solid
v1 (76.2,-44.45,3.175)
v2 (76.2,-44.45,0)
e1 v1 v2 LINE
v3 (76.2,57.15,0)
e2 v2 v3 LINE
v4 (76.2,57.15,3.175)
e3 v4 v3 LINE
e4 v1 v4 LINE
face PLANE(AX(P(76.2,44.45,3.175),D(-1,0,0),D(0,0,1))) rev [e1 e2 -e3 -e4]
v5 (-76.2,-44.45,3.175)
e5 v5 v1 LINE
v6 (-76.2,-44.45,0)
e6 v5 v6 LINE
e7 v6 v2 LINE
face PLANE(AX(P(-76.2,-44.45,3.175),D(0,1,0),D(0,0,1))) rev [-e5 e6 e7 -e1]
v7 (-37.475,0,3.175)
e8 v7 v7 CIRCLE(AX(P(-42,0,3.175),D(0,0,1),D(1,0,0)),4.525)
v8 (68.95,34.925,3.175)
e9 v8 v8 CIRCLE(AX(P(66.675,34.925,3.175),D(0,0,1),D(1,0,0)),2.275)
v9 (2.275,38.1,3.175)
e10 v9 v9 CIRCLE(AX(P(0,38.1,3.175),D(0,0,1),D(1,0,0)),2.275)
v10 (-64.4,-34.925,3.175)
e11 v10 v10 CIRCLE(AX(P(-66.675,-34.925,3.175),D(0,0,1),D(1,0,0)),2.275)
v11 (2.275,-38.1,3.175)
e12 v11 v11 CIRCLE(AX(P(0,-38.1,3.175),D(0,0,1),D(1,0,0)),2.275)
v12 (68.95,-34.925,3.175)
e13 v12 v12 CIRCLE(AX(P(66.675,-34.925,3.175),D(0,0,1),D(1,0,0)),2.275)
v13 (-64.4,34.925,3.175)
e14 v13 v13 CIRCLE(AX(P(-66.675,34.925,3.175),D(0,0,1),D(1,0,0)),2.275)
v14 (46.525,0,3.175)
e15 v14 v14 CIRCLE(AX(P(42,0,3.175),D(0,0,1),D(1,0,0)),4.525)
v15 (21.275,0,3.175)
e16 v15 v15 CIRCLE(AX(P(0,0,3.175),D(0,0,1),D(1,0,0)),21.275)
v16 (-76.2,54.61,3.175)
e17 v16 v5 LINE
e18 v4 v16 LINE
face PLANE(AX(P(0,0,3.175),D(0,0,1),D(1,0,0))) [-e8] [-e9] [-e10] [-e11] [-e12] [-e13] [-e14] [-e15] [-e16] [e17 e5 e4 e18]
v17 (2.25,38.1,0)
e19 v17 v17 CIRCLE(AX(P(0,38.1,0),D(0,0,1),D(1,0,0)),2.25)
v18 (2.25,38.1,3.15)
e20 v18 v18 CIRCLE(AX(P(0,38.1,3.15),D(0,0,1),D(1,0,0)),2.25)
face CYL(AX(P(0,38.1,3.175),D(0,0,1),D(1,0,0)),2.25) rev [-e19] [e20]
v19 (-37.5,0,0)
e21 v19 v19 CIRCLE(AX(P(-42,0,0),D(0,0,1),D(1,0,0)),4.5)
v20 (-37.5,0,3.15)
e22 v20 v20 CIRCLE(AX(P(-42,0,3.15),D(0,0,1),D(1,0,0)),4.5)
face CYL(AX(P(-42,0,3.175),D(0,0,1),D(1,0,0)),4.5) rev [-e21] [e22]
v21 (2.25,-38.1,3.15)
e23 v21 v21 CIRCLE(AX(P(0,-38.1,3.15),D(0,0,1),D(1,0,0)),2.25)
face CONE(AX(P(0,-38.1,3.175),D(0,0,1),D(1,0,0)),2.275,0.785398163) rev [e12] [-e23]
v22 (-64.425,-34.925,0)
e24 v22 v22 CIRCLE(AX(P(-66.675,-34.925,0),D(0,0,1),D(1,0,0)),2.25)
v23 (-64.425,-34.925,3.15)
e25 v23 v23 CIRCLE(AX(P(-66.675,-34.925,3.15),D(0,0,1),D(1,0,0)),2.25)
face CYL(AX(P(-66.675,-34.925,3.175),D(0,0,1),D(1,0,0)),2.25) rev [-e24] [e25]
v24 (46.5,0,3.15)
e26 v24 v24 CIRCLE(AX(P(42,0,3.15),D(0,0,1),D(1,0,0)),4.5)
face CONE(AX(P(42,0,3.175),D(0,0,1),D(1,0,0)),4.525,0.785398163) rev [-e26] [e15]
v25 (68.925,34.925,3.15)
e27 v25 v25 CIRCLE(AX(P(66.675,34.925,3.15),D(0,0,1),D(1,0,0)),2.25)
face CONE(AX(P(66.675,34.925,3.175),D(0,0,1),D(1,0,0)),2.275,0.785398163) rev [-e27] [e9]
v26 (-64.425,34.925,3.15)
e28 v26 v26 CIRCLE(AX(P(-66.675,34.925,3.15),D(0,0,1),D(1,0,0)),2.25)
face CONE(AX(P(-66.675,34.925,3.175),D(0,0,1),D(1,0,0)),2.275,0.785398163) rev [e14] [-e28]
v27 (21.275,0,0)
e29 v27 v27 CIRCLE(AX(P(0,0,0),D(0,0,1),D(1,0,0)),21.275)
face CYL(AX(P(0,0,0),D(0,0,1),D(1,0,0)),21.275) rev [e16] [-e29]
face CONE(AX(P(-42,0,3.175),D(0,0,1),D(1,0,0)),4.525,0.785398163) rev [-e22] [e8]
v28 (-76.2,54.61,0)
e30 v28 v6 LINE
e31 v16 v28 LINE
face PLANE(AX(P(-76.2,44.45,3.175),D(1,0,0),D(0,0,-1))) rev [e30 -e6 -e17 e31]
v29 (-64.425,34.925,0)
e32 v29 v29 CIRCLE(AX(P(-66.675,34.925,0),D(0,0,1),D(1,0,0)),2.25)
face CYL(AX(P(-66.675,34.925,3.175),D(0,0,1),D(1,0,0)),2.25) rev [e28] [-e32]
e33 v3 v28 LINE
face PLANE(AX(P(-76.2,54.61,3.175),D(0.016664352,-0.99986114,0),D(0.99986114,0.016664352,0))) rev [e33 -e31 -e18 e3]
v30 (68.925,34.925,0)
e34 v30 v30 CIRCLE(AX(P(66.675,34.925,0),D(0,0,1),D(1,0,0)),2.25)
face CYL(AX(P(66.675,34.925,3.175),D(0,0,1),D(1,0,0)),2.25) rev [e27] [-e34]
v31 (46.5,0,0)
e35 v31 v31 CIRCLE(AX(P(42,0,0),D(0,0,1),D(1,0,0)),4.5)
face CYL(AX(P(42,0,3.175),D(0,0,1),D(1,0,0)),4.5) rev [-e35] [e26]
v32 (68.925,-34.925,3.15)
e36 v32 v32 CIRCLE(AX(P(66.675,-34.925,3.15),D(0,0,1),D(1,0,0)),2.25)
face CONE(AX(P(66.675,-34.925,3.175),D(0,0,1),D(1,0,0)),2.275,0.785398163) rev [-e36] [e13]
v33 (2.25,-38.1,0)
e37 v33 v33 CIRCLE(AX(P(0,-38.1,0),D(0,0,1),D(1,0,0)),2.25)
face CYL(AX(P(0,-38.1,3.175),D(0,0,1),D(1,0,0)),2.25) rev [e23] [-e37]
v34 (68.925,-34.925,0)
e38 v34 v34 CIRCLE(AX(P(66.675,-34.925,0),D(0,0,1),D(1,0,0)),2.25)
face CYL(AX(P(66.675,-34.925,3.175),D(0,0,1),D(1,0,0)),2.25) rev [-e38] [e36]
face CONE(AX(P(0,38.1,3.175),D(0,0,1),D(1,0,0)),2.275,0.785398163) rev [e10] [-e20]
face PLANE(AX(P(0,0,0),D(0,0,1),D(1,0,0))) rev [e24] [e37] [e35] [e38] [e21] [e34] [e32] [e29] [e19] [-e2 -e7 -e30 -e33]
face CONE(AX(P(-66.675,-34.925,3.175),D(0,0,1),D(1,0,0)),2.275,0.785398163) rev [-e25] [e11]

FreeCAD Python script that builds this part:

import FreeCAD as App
import Part
import Sketcher
Q = App.Units.Quantity

doc = App.newDocument("Part")
params = doc.addObject("Spreadsheet::Sheet", "Params")
for row, (alias, value) in enumerate([
    ("sketch1_width", "6 in"),
    ("sketch1_height", "4 in"),
    ("sketch1_height2", "3.9 in"),
    ("pad1_length", "0.125 in"),
    ("hole_diameter", "4.5 mm"),
    ("hole_csink_diameter", "4.55 mm"),
    ("sketch3_height", "0.125 in"),
    ("groove_angle", "360 deg"),
    ("linearpattern_pitch", "84 mm"),
], start=1):
    params.set(f"A{row}", alias)
    params.set(f"B{row}", "=" + value)
    params.setAlias(f"B{row}", alias)

body = doc.addObject("PartDesign::Body", "Body")

sketch1 = body.newObject("Sketcher::SketchObject", "Sketch")
sketch1.AttachmentSupport = (doc.getObject("XY_Plane"), [""])
sketch1.MapMode = "FlatFace"
sketch1.addGeometry([
    Part.LineSegment(App.Vector(-76, 55, 0), App.Vector(-76, -44, 0)),
    Part.LineSegment(App.Vector(-76, -44, 0), App.Vector(76, -44, 0)),
    Part.LineSegment(App.Vector(76, -44, 0), App.Vector(76, 57, 0)),
    Part.LineSegment(App.Vector(76, 57, 0), App.Vector(-76, 55, 0)),
], False)
sketch1.addConstraint([
    Sketcher.Constraint("Coincident", 0, 2, 1, 1),
    Sketcher.Constraint("Coincident", 1, 2, 2, 1),
    Sketcher.Constraint("Coincident", 2, 2, 3, 1),
    Sketcher.Constraint("Coincident", 3, 2, 0, 1),
    Sketcher.Constraint("Vertical", 0),
    Sketcher.Constraint("Horizontal", 1),
    Sketcher.Constraint("Vertical", 2),
    Sketcher.Constraint("DistanceX", 1, 1, 1, 2, Q("6 in")),
    Sketcher.Constraint("DistanceY", 2, 1, 2, 2, Q("4 in")),
    Sketcher.Constraint("DistanceY", 0, 2, 0, 1, Q("3.9 in")),
    Sketcher.Constraint("DistanceX", 0, 2, -1, 1, Q("3 in")),
    Sketcher.Constraint("DistanceY", 0, 2, -1, 1, Q("1.75 in")),
])
sketch1.setExpression("Constraints[7]", "Params.sketch1_width")
sketch1.setExpression("Constraints[8]", "Params.sketch1_height")
sketch1.setExpression("Constraints[9]", "Params.sketch1_height2")
pad1 = body.newObject("PartDesign::Pad", "Pad")
pad1.Profile = sketch1
pad1.setExpression("Length", "Params.pad1_length")

sketch2 = body.newObject("Sketcher::SketchObject", "Sketch001")
sketch2.AttachmentSupport = (doc.getObject("XY_Plane"), [""])
sketch2.MapMode = "FlatFace"
sketch2.AttachmentOffset = App.Placement(App.Vector(0, 0, 0.125 * 25.4), App.Rotation())
sketch2.addGeometry([
    Part.Circle(App.Vector(0, 38.1, 0), App.Vector(0, 0, 1), 2.2),
    Part.Circle(App.Vector(-66.7, 34.9, 0), App.Vector(0, 0, 1), 2.2),
    Part.Circle(App.Vector(-66.7, -34.9, 0), App.Vector(0, 0, 1), 2.2),
    Part.Circle(App.Vector(0, -38.1, 0), App.Vector(0, 0, 1), 2.2),
    Part.Circle(App.Vector(66.7, -34.9, 0), App.Vector(0, 0, 1), 2.2),
    Part.Circle(App.Vector(66.7, 34.9, 0), App.Vector(0, 0, 1), 2.2),
], False)
sketch2.addConstraint([
    Sketcher.Constraint("Equal", 0, 1),
    Sketcher.Constraint("Equal", 1, 2),
    Sketcher.Constraint("Equal", 2, 3),
    Sketcher.Constraint("Equal", 3, 4),
    Sketcher.Constraint("Equal", 4, 5),
    Sketcher.Constraint("Symmetric", 0, 3, 3, 3, -1, 1),
    Sketcher.Constraint("Symmetric", 1, 3, 4, 3, -1, 1),
    Sketcher.Constraint("Symmetric", 2, 3, 5, 3, -1, 1),
    Sketcher.Constraint("Symmetric", 2, 3, 4, 3, -2),
    Sketcher.Constraint("PointOnObject", 0, 3, -2),
    Sketcher.Constraint("DistanceY", 3, 3, 0, 3, Q("3 in")),
    Sketcher.Constraint("Diameter", 0, Q("4.5 mm")),
    Sketcher.Constraint("DistanceY", 2, 3, 1, 3, Q("2.75 in")),
    Sketcher.Constraint("DistanceX", 2, 3, 4, 3, Q("5.25 in")),
])
doc.recompute()
hole = body.newObject("PartDesign::Hole", "Hole")
hole.Profile = sketch2
hole.ThreadType = "None"
hole.setExpression("Diameter", "Params.hole_diameter")
hole.DepthType = "ThroughAll"
hole.HoleCutType = "Countersink"
hole.setExpression("HoleCutDiameter", "Params.hole_csink_diameter")
hole.HoleCutCountersinkAngle = 90

sketch3 = body.newObject("Sketcher::SketchObject", "Sketch002")
sketch3.AttachmentSupport = (doc.getObject("YZ_Plane"), [""])
sketch3.MapMode = "FlatFace"
sketch3.AttachmentOffset = App.Placement(App.Vector(0, 0, -42), App.Rotation())
sketch3.addGeometry([
    Part.LineSegment(App.Vector(0, 0, 0), App.Vector(0, 3.175, 0)),
    Part.LineSegment(App.Vector(0, 3.175, 0), App.Vector(-4.525, 3.175, 0)),
    Part.LineSegment(App.Vector(-4.525, 3.175, 0), App.Vector(-4.5, 3.15, 0)),
    Part.LineSegment(App.Vector(-4.5, 3.15, 0), App.Vector(-4.5, 0, 0)),
    Part.LineSegment(App.Vector(-4.5, 0, 0), App.Vector(0, 0, 0)),
], False)
sketch3.addConstraint([
    Sketcher.Constraint("Coincident", 0, 2, 1, 1),
    Sketcher.Constraint("Coincident", 1, 2, 2, 1),
    Sketcher.Constraint("Coincident", 2, 2, 3, 1),
    Sketcher.Constraint("Coincident", 3, 2, 4, 1),
    Sketcher.Constraint("Coincident", 4, 2, 0, 1),
    Sketcher.Constraint("Vertical", 0),
    Sketcher.Constraint("Horizontal", 1),
    Sketcher.Constraint("Vertical", 3),
    Sketcher.Constraint("Horizontal", 4),
    Sketcher.Constraint("Coincident", 4, 2, -1, 1),
    Sketcher.Constraint("Angle", 2, Q("-45 deg")),
    Sketcher.Constraint("DistanceY", 0, 1, 0, 2, Q("0.125 in")),
    Sketcher.Constraint("DistanceX", 1, 2, 1, 1, Q("4.525 mm")),
    Sketcher.Constraint("DistanceX", 4, 1, 4, 2, Q("4.5 mm")),
])
sketch3.setExpression("Constraints[11]", "Params.sketch3_height")
groove = body.newObject("PartDesign::Groove", "Groove")
groove.Profile = sketch3
groove.ReferenceAxis = (sketch3, ["V_Axis"])
groove.setExpression("Angle", "Params.groove_angle")
doc.recompute()

linearpattern = body.newObject("PartDesign::LinearPattern", "LinearPattern")
linearpattern.Originals = [groove]
linearpattern.Direction = (doc.getObject("X_Axis"), [""])
linearpattern.Mode = "offset"
linearpattern.setExpression("Offset", "Params.linearpattern_pitch")
linearpattern.Occurrences = 2
body.Tip = linearpattern

sketch4 = body.newObject("Sketcher::SketchObject", "Sketch003")
sketch4.AttachmentSupport = (doc.getObject("XY_Plane"), [""])
sketch4.MapMode = "FlatFace"
sketch4.AttachmentOffset = App.Placement(App.Vector(0, 0, 0.125 * 25.4), App.Rotation())
sketch4.addGeometry(Part.Circle(App.Vector(0, 0, 0), App.Vector(0, 0, 1), 21), False)
sketch4.addConstraint([
    Sketcher.Constraint("Coincident", 0, 3, -1, 1),
    Sketcher.Constraint("Diameter", 0, Q("42.55 mm")),
])
pocket1 = body.newObject("PartDesign::Pocket", "Pocket")
pocket1.Profile = sketch4
pocket1.Type = "ThroughAll"

doc.recompute()
